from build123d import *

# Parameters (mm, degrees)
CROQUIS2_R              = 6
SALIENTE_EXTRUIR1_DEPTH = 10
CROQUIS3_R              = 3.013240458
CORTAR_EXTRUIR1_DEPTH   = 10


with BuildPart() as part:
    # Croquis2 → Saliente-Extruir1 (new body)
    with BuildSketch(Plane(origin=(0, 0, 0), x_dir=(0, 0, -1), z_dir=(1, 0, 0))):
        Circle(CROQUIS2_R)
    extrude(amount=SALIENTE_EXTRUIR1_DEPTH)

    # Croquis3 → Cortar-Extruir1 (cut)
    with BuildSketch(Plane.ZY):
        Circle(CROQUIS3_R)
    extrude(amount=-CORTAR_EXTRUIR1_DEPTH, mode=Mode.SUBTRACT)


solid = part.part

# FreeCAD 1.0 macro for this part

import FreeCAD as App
import Part
import Sketcher

V = App.Vector

doc = App.newDocument("Part")
body = doc.addObject("PartDesign::Body", "Body")

# Sketch on YZ plane
sketch1 = doc.addObject("Sketcher::SketchObject", "Sketch")
body.addObject(sketch1)
sketch1.AttachmentSupport = (doc.YZ_Plane, [""])
sketch1.MapMode = "FlatFace"
sketch1.addGeometry(Part.Circle(V(0, 0, 0), V(0, 0, 1), 6), False)
sketch1.addConstraint(Sketcher.Constraint("Coincident", 0, 3, -1, 1))
sketch1.addConstraint(Sketcher.Constraint("Diameter", 0, 12.0))
pad1 = doc.addObject("PartDesign::Pad", "Pad")
body.addObject(pad1)
pad1.Profile = sketch1
pad1.Length = 10

# Sketch on YZ plane
sketch2 = doc.addObject("Sketcher::SketchObject", "Sketch001")
body.addObject(sketch2)
sketch2.AttachmentSupport = (doc.YZ_Plane, [""])
sketch2.MapMode = "FlatFace"
sketch2.addGeometry(Part.Circle(V(0, 0, 0), V(0, 0, 1), 3), False)
sketch2.addConstraint(Sketcher.Constraint("Coincident", 0, 3, -1, 1))
sketch2.addConstraint(Sketcher.Constraint("Diameter", 0, 6.026481))
pocket1 = doc.addObject("PartDesign::Pocket", "Pocket")
body.addObject(pocket1)
pocket1.Profile = sketch2
pocket1.Length = 10
pocket1.Reversed = True

doc.recompute()
